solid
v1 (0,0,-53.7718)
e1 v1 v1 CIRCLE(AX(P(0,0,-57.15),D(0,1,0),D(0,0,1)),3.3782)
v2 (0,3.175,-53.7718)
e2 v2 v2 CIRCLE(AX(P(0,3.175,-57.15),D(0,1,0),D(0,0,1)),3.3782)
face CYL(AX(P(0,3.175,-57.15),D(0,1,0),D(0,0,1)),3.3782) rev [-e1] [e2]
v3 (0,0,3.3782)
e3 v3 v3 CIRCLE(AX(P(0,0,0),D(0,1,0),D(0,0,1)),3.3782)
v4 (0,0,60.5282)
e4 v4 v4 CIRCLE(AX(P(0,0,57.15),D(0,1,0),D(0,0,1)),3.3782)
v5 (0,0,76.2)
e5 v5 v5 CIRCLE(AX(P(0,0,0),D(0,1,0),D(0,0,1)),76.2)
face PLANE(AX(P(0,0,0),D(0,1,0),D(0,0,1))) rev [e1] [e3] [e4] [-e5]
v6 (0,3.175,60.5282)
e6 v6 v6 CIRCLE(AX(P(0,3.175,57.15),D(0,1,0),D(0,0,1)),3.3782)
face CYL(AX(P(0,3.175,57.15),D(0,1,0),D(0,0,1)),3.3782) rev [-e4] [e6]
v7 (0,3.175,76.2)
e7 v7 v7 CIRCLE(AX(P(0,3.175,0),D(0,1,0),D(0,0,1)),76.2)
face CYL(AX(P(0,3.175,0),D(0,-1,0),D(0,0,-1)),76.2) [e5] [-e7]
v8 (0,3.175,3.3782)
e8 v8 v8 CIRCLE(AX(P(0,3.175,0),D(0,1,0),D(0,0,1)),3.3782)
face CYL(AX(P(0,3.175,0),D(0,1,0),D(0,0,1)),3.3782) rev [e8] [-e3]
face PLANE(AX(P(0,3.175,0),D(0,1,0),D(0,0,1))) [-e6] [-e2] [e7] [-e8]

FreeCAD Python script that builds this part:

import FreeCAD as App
import Part
import Sketcher

V = App.Vector
Q = App.Units.Quantity

doc = App.newDocument("Part")
body = doc.addObject("PartDesign::Body", "Body")

sketch1 = doc.addObject("Sketcher::SketchObject", "Sketch")
body.addObject(sketch1)
sketch1.AttachmentSupport = (doc.XZ_Plane, [""])
sketch1.MapMode = "FlatFace"
sketch1.addGeometry(Part.Circle(V(0, 0, 0), V(0, 0, 1), 76.2), False)
sketch1.addConstraint([
    Sketcher.Constraint("Coincident", 0, 3, -1, 1),
    Sketcher.Constraint("Diameter", 0, Q("6 in")),
])
pad1 = doc.addObject("PartDesign::Pad", "Pad")
body.addObject(pad1)
pad1.Profile = sketch1
pad1.Length = Q("0.125 in")
pad1.Reversed = True

sketch2 = doc.addObject("Sketcher::SketchObject", "Sketch001")
body.addObject(sketch2)
sketch2.AttachmentSupport = (doc.XZ_Plane, [""])
sketch2.MapMode = "FlatFace"
sketch2.AttachmentOffset = App.Placement(V(0, 0, -0.125 * 25.4), App.Rotation())
sketch2.addGeometry([
    Part.Circle(V(0, -57.15, 0), V(0, 0, 1), 3.3782),
    Part.Circle(V(0, 57.15, 0), V(0, 0, 1), 3.3782),
], False)
sketch2.addConstraint([
    Sketcher.Constraint("Equal", 0, 1),
    Sketcher.Constraint("Symmetric", 0, 3, 1, 3, -1, 1),
    Sketcher.Constraint("PointOnObject", 0, 3, -2),
    Sketcher.Constraint("Diameter", 0, Q("0.266 in")),
    Sketcher.Constraint("DistanceY", 0, 3, 1, 3, Q("4.5 in")),
])
doc.recompute()
hole = doc.addObject("PartDesign::Hole", "Hole")
body.addObject(hole)
hole.Profile = sketch2
hole.ThreadType = "None"
hole.Diameter = Q("0.266 in")
hole.DepthType = "ThroughAll"
hole.Reversed = True

sketch3 = doc.addObject("Sketcher::SketchObject", "Sketch002")
body.addObject(sketch3)
sketch3.AttachmentSupport = (doc.XZ_Plane, [""])
sketch3.MapMode = "FlatFace"
sketch3.AttachmentOffset = App.Placement(V(0, 0, -0.125 * 25.4), App.Rotation())
sketch3.addGeometry(Part.Circle(V(0, 0, 0), V(0, 0, 1), 3.3782), False)
sketch3.addConstraint([
    Sketcher.Constraint("Coincident", 0, 3, -1, 1),
    Sketcher.Constraint("Diameter", 0, Q("0.266 in")),
])
doc.recompute()
hole2 = doc.addObject("PartDesign::Hole", "Hole001")
body.addObject(hole2)
hole2.Profile = sketch3
hole2.ThreadType = "None"
hole2.Diameter = Q("0.266 in")
hole2.DepthType = "ThroughAll"
hole2.Reversed = True

doc.recompute()
